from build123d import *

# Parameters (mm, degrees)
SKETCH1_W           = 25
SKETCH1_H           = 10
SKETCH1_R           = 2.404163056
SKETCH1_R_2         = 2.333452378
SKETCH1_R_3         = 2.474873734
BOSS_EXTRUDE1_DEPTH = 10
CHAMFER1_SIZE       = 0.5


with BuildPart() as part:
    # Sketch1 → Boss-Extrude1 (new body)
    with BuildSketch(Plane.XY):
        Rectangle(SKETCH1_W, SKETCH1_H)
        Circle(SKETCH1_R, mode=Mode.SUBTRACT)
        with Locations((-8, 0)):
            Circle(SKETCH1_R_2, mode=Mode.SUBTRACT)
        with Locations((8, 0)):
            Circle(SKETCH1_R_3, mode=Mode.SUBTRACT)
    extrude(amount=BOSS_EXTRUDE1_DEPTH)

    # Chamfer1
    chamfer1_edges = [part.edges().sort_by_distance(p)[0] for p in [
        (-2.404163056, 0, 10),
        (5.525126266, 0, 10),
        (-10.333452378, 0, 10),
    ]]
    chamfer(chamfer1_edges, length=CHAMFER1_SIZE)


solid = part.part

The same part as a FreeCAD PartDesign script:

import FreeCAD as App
import Part
import Sketcher

V = App.Vector
Q = App.Units.Quantity


def edges_at(feature, points):
    """Names of the edges that pass closest to the given points."""
    edges = feature.Shape.Edges
    near = lambda p: min(range(len(edges)), key=lambda i: edges[i].distToShape(Part.Vertex(*p))[0])
    return sorted({f"Edge{near(p) + 1}" for p in points})


def add_polygon(sketch, points):
    """Adds a closed chain of lines whose ends are joined by coincident constraints."""
    first, n = sketch.GeometryCount, len(points)
    for a, b in zip(points, points[1:] + points[:1]):
        sketch.addGeometry(Part.LineSegment(App.Vector(*a, 0), App.Vector(*b, 0)), False)
    for i in range(n):
        sketch.addConstraint(Sketcher.Constraint("Coincident", first + i, 2, first + (i + 1) % n, 1))

doc = App.newDocument("Part")
body = doc.addObject("PartDesign::Body", "Body")

# Sketch on XY plane
sketch1 = doc.addObject("Sketcher::SketchObject", "Sketch")
body.addObject(sketch1)
sketch1.AttachmentSupport = (doc.XY_Plane, [""])
sketch1.MapMode = "FlatFace"
add_polygon(sketch1, [(-12.5, 5), (-12.5, -5), (12.5, -5), (12.5, 5)])  # lines 0-3
sketch1.addGeometry(Part.Circle(V(-8, 0, 0), V(0, 0, 1), 2.333452), False)  # 4
sketch1.addGeometry(Part.Circle(V(0, 0, 0), V(0, 0, 1), 2.404163), False)  # 5
sketch1.addGeometry(Part.Circle(V(8, 0, 0), V(0, 0, 1), 2.474874), False)  # 6
sketch1.addConstraint([
    Sketcher.Constraint("Vertical", 0),
    Sketcher.Constraint("Horizontal", 1),
    Sketcher.Constraint("Vertical", 2),
    Sketcher.Constraint("Horizontal", 3),
    Sketcher.Constraint("Coincident", 5, 3, -1, 1),
    Sketcher.Constraint("Symmetric", 4, 3, 6, 3, -1, 1),
    Sketcher.Constraint("Symmetric", 0, 2, 2, 2, -1, 1),
    Sketcher.Constraint("PointOnObject", 4, 3, -1),
    Sketcher.Constraint("DistanceX", 1, 1, 1, 2, Q("25 mm")),
    Sketcher.Constraint("DistanceY", 0, 2, 0, 1, Q("10 mm")),
    Sketcher.Constraint("DistanceX", 4, 3, -1, 1, Q("8 mm")),
    Sketcher.Constraint("Diameter", 4, Q("4.666905 mm")),
    Sketcher.Constraint("Diameter", 5, Q("4.808326 mm")),
    Sketcher.Constraint("Diameter", 6, Q("4.949747 mm")),
])
pad1 = doc.addObject("PartDesign::Pad", "Pad")
body.addObject(pad1)
pad1.Profile = sketch1
pad1.Length = 10
doc.recompute()

chamfer = doc.addObject("PartDesign::Chamfer", "Chamfer")
body.addObject(chamfer)
chamfer.Base = (pad1, edges_at(pad1, [(-2.404, 0, 10), (5.525, 0, 10), (-10.333, 0, 10)]))
chamfer.Size = 0.5

doc.recompute()
